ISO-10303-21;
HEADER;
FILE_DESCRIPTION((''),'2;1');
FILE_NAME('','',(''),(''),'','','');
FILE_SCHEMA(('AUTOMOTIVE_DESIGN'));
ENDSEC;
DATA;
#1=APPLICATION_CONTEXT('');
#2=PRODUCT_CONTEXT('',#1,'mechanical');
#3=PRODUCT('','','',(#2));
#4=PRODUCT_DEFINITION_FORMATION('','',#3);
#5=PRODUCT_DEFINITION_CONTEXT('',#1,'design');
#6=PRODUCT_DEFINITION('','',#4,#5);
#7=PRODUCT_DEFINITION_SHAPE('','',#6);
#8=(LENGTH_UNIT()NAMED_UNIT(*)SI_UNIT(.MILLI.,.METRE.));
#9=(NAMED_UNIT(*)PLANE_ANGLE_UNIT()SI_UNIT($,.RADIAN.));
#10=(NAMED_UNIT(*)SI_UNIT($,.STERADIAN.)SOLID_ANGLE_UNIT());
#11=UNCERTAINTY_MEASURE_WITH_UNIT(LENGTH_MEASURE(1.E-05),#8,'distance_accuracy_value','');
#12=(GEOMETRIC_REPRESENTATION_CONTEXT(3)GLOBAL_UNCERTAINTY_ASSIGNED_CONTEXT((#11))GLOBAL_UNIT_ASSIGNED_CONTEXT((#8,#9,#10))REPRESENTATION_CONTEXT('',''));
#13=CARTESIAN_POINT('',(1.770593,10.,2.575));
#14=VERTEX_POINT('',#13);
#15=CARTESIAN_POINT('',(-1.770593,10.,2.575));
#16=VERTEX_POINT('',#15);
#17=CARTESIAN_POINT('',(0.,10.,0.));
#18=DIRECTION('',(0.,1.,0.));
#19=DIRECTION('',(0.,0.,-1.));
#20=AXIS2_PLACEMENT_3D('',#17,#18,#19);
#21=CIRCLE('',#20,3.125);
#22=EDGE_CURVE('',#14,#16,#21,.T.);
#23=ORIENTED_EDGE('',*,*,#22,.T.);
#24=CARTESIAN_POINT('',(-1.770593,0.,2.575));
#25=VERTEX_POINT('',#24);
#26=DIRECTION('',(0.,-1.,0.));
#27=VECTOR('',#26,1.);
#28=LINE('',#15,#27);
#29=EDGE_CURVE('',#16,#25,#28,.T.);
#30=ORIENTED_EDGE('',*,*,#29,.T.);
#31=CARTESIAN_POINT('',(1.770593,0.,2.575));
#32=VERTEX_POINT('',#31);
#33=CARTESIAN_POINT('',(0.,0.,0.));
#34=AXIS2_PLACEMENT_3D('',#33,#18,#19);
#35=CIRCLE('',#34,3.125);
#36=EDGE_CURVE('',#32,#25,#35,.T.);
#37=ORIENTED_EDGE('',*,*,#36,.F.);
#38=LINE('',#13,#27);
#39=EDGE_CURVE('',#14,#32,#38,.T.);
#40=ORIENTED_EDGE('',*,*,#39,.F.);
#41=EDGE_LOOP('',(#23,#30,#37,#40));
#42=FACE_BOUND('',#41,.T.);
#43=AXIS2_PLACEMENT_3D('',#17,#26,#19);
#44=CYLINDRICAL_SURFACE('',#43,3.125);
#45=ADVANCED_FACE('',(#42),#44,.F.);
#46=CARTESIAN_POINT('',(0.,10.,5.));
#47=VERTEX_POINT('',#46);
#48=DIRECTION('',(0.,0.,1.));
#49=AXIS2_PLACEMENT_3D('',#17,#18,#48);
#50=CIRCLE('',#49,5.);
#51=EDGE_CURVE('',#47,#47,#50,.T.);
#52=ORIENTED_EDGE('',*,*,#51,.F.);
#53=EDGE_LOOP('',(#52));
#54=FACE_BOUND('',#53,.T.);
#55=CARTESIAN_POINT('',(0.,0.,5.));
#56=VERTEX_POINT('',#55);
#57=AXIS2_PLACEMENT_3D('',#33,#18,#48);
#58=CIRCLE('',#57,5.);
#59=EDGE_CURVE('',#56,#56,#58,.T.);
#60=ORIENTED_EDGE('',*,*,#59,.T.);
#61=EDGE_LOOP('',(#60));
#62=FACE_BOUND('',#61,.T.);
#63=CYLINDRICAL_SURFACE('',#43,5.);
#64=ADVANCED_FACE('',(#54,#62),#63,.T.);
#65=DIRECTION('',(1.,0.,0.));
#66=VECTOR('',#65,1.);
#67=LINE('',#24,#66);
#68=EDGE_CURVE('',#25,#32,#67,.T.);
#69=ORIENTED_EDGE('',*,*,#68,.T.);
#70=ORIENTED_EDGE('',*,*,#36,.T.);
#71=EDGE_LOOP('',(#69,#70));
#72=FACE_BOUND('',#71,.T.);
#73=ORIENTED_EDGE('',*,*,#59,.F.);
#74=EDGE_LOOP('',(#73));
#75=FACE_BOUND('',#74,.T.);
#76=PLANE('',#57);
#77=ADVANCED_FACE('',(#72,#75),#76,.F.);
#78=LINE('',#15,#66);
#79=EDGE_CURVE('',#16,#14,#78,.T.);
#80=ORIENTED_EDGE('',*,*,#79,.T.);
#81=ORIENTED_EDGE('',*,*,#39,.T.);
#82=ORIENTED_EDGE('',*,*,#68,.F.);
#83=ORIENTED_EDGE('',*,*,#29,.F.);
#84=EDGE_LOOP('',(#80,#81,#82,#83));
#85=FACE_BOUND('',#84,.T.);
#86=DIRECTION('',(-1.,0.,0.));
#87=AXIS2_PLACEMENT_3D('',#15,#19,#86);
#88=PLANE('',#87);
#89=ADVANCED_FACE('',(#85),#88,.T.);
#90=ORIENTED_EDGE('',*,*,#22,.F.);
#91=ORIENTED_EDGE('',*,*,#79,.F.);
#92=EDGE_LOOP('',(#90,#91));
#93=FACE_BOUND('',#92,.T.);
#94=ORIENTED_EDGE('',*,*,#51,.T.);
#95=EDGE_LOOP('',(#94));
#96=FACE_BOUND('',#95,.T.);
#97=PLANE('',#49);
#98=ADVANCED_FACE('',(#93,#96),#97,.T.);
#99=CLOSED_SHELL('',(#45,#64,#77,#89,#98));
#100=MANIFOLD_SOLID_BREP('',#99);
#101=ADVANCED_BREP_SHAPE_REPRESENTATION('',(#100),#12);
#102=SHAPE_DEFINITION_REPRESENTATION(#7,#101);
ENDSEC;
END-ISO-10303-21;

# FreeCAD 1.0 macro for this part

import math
import FreeCAD as App
import Part
import Sketcher

doc = App.newDocument("Part")
params = doc.addObject("Spreadsheet::Sheet", "Params")
for row, (alias, value) in enumerate([
    ("sketch1_diameter", "10 mm"),
    ("pad1_length", "10 mm"),
], start=1):
    params.set(f"A{row}", alias)
    params.set(f"B{row}", "=" + value)
    params.setAlias(f"B{row}", alias)

body = doc.addObject("PartDesign::Body", "Body")

sketch1 = doc.addObject("Sketcher::SketchObject", "Sketch")
body.addObject(sketch1)
sketch1.AttachmentSupport = (doc.XZ_Plane, [""])
sketch1.MapMode = "FlatFace"
sketch1.addGeometry(Part.Circle(App.Vector(0, 0, 0), App.Vector(0, 0, 1), 5), False)
sketch1.addGeometry(Part.LineSegment(App.Vector(1.8, 2.6, 0), App.Vector(-1.8, 2.6, 0)), False)
sketch1.addGeometry(Part.ArcOfCircle(Part.Circle(App.Vector(0, 0, 0), App.Vector(0, 0, 1), 3.1), math.radians(125), math.radians(415)), False)
sketch1.addConstraint(Sketcher.Constraint("Coincident", 1, 1, 2, 2))
sketch1.addConstraint(Sketcher.Constraint("Coincident", 2, 1, 1, 2))
sketch1.addConstraint(Sketcher.Constraint("Horizontal", 1))
sketch1.addConstraint(Sketcher.Constraint("Coincident", 0, 3, -1, 1))
sketch1.addConstraint(Sketcher.Constraint("Coincident", 2, 3, -1, 1))
sketch1.addConstraint(Sketcher.Constraint("Diameter", 0, 10.0))
sketch1.addConstraint(Sketcher.Constraint("Radius", 2, 3.125))
sketch1.addConstraint(Sketcher.Constraint("DistanceY", -1, 1, 1, 1, 2.575))
sketch1.setExpression("Constraints[5]", "Params.sketch1_diameter")
pad1 = doc.addObject("PartDesign::Pad", "Pad")
body.addObject(pad1)
pad1.Profile = sketch1
pad1.setExpression("Length", "Params.pad1_length")
pad1.Reversed = True

doc.recompute()
